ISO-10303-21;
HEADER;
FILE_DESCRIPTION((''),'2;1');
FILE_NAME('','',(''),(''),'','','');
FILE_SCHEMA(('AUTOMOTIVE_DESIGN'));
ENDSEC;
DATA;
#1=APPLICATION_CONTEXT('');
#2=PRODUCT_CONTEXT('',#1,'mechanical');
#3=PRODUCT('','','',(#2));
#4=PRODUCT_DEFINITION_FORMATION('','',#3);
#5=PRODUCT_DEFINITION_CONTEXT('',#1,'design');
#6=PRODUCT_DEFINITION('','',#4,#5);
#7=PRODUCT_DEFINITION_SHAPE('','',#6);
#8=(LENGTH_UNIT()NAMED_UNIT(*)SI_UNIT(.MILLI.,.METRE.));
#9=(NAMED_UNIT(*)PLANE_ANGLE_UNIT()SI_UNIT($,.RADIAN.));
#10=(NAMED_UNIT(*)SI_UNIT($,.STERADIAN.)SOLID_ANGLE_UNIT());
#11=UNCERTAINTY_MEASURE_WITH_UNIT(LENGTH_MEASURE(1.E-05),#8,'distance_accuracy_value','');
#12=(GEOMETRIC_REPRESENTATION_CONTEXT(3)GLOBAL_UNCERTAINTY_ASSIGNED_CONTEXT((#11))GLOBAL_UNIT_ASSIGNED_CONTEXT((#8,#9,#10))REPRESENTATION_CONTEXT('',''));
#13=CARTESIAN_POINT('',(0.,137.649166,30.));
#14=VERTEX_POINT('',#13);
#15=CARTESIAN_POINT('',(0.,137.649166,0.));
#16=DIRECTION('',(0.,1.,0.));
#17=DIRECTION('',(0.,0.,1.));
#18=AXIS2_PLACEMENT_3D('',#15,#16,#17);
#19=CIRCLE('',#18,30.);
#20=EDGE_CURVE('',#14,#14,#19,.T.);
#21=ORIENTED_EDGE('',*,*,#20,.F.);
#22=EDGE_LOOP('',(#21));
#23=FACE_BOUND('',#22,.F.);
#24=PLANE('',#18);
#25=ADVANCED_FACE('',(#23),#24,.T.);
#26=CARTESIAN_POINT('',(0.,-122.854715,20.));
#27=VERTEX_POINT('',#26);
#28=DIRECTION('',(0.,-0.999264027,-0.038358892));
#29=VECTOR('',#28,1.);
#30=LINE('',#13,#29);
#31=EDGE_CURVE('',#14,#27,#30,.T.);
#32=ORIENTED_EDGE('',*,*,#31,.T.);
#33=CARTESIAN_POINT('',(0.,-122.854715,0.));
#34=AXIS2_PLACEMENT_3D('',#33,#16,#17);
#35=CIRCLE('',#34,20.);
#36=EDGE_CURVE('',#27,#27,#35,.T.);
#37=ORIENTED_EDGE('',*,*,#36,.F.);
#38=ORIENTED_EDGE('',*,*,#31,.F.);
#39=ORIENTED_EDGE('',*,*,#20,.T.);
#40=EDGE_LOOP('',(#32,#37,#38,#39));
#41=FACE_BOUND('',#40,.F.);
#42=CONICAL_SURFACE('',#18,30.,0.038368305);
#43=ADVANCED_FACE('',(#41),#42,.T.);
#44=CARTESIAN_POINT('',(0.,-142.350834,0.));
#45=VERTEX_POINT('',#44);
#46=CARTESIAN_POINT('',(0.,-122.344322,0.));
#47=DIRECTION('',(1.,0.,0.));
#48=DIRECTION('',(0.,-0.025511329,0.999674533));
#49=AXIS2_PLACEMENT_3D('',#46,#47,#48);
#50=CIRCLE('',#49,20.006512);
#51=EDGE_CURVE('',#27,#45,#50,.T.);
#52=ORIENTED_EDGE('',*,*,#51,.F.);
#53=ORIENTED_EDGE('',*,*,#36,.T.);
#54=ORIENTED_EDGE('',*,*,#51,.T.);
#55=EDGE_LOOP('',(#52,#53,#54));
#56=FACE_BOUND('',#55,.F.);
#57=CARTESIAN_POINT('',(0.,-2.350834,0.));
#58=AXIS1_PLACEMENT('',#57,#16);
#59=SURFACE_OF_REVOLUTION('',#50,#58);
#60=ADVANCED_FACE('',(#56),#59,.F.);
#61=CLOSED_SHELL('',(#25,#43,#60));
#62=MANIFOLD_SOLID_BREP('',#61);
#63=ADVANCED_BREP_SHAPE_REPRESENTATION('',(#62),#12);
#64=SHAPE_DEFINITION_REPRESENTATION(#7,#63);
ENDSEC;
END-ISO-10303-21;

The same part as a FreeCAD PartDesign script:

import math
import FreeCAD as App
import Part
import Sketcher
from FreeCAD import Vector

doc = App.newDocument("Part")
params = doc.addObject("Spreadsheet::Sheet", "Params")
for row, (alias, value) in enumerate([
    ("sketch1_width", "280 mm"),
    ("sketch1_height", "30 mm"),
    ("revolution_angle", "360 deg"),
], start=1):
    params.set(f"A{row}", alias)
    params.set(f"B{row}", "=" + value)
    params.setAlias(f"B{row}", alias)

body = doc.addObject("PartDesign::Body", "Body")

sketch1 = body.newObject("Sketcher::SketchObject", "Sketch")
sketch1.AttachmentSupport = (doc.getObject("YZ_Plane"), [""])
sketch1.MapMode = "FlatFace"
sketch1.addGeometry(Part.ArcOfCircle(Part.Circle(Vector(-122.344322, 0, 0), Vector(0, 0, 1), 20.006512), math.radians(91.46185), math.radians(179.999999)), False)
sketch1.addGeometry(Part.LineSegment(Vector(-142.350834, 0, 0), Vector(137.649166, 0, 0)), False)
sketch1.addGeometry(Part.LineSegment(Vector(137.649166, 0, 0), Vector(137.649166, 30, 0)), False)
sketch1.addGeometry(Part.LineSegment(Vector(137.649166, 30, 0), Vector(-122.854715, 20, 0)), False)
sketch1.addConstraint(Sketcher.Constraint("Coincident", 0, 2, 1, 1))
sketch1.addConstraint(Sketcher.Constraint("Coincident", 1, 2, 2, 1))
sketch1.addConstraint(Sketcher.Constraint("Coincident", 2, 2, 3, 1))
sketch1.addConstraint(Sketcher.Constraint("Coincident", 3, 2, 0, 1))
sketch1.addConstraint(Sketcher.Constraint("Horizontal", 1))
sketch1.addConstraint(Sketcher.Constraint("Vertical", 2))
sketch1.addConstraint(Sketcher.Constraint("PointOnObject", 0, 3, -1))
sketch1.addConstraint(Sketcher.Constraint("PointOnObject", 0, 2, -1))
sketch1.addConstraint(Sketcher.Constraint("DistanceX", 1, 1, 1, 2, 280.0))
sketch1.addConstraint(Sketcher.Constraint("DistanceY", 2, 1, 2, 2, 30.0))
sketch1.addConstraint(Sketcher.Constraint("DistanceY", -1, 1, 3, 2, 20.0))
sketch1.addConstraint(Sketcher.Constraint("Radius", 0, 20.006512))
sketch1.addConstraint(Sketcher.Constraint("DistanceX", 0, 3, -1, 1, 122.344322))
sketch1.setExpression("Constraints[8]", "Params.sketch1_width")
sketch1.setExpression("Constraints[9]", "Params.sketch1_height")
revolution = body.newObject("PartDesign::Revolution", "Revolution")
revolution.Profile = sketch1
revolution.ReferenceAxis = (sketch1, ["H_Axis"])
revolution.setExpression("Angle", "Params.revolution_angle")

doc.recompute()
